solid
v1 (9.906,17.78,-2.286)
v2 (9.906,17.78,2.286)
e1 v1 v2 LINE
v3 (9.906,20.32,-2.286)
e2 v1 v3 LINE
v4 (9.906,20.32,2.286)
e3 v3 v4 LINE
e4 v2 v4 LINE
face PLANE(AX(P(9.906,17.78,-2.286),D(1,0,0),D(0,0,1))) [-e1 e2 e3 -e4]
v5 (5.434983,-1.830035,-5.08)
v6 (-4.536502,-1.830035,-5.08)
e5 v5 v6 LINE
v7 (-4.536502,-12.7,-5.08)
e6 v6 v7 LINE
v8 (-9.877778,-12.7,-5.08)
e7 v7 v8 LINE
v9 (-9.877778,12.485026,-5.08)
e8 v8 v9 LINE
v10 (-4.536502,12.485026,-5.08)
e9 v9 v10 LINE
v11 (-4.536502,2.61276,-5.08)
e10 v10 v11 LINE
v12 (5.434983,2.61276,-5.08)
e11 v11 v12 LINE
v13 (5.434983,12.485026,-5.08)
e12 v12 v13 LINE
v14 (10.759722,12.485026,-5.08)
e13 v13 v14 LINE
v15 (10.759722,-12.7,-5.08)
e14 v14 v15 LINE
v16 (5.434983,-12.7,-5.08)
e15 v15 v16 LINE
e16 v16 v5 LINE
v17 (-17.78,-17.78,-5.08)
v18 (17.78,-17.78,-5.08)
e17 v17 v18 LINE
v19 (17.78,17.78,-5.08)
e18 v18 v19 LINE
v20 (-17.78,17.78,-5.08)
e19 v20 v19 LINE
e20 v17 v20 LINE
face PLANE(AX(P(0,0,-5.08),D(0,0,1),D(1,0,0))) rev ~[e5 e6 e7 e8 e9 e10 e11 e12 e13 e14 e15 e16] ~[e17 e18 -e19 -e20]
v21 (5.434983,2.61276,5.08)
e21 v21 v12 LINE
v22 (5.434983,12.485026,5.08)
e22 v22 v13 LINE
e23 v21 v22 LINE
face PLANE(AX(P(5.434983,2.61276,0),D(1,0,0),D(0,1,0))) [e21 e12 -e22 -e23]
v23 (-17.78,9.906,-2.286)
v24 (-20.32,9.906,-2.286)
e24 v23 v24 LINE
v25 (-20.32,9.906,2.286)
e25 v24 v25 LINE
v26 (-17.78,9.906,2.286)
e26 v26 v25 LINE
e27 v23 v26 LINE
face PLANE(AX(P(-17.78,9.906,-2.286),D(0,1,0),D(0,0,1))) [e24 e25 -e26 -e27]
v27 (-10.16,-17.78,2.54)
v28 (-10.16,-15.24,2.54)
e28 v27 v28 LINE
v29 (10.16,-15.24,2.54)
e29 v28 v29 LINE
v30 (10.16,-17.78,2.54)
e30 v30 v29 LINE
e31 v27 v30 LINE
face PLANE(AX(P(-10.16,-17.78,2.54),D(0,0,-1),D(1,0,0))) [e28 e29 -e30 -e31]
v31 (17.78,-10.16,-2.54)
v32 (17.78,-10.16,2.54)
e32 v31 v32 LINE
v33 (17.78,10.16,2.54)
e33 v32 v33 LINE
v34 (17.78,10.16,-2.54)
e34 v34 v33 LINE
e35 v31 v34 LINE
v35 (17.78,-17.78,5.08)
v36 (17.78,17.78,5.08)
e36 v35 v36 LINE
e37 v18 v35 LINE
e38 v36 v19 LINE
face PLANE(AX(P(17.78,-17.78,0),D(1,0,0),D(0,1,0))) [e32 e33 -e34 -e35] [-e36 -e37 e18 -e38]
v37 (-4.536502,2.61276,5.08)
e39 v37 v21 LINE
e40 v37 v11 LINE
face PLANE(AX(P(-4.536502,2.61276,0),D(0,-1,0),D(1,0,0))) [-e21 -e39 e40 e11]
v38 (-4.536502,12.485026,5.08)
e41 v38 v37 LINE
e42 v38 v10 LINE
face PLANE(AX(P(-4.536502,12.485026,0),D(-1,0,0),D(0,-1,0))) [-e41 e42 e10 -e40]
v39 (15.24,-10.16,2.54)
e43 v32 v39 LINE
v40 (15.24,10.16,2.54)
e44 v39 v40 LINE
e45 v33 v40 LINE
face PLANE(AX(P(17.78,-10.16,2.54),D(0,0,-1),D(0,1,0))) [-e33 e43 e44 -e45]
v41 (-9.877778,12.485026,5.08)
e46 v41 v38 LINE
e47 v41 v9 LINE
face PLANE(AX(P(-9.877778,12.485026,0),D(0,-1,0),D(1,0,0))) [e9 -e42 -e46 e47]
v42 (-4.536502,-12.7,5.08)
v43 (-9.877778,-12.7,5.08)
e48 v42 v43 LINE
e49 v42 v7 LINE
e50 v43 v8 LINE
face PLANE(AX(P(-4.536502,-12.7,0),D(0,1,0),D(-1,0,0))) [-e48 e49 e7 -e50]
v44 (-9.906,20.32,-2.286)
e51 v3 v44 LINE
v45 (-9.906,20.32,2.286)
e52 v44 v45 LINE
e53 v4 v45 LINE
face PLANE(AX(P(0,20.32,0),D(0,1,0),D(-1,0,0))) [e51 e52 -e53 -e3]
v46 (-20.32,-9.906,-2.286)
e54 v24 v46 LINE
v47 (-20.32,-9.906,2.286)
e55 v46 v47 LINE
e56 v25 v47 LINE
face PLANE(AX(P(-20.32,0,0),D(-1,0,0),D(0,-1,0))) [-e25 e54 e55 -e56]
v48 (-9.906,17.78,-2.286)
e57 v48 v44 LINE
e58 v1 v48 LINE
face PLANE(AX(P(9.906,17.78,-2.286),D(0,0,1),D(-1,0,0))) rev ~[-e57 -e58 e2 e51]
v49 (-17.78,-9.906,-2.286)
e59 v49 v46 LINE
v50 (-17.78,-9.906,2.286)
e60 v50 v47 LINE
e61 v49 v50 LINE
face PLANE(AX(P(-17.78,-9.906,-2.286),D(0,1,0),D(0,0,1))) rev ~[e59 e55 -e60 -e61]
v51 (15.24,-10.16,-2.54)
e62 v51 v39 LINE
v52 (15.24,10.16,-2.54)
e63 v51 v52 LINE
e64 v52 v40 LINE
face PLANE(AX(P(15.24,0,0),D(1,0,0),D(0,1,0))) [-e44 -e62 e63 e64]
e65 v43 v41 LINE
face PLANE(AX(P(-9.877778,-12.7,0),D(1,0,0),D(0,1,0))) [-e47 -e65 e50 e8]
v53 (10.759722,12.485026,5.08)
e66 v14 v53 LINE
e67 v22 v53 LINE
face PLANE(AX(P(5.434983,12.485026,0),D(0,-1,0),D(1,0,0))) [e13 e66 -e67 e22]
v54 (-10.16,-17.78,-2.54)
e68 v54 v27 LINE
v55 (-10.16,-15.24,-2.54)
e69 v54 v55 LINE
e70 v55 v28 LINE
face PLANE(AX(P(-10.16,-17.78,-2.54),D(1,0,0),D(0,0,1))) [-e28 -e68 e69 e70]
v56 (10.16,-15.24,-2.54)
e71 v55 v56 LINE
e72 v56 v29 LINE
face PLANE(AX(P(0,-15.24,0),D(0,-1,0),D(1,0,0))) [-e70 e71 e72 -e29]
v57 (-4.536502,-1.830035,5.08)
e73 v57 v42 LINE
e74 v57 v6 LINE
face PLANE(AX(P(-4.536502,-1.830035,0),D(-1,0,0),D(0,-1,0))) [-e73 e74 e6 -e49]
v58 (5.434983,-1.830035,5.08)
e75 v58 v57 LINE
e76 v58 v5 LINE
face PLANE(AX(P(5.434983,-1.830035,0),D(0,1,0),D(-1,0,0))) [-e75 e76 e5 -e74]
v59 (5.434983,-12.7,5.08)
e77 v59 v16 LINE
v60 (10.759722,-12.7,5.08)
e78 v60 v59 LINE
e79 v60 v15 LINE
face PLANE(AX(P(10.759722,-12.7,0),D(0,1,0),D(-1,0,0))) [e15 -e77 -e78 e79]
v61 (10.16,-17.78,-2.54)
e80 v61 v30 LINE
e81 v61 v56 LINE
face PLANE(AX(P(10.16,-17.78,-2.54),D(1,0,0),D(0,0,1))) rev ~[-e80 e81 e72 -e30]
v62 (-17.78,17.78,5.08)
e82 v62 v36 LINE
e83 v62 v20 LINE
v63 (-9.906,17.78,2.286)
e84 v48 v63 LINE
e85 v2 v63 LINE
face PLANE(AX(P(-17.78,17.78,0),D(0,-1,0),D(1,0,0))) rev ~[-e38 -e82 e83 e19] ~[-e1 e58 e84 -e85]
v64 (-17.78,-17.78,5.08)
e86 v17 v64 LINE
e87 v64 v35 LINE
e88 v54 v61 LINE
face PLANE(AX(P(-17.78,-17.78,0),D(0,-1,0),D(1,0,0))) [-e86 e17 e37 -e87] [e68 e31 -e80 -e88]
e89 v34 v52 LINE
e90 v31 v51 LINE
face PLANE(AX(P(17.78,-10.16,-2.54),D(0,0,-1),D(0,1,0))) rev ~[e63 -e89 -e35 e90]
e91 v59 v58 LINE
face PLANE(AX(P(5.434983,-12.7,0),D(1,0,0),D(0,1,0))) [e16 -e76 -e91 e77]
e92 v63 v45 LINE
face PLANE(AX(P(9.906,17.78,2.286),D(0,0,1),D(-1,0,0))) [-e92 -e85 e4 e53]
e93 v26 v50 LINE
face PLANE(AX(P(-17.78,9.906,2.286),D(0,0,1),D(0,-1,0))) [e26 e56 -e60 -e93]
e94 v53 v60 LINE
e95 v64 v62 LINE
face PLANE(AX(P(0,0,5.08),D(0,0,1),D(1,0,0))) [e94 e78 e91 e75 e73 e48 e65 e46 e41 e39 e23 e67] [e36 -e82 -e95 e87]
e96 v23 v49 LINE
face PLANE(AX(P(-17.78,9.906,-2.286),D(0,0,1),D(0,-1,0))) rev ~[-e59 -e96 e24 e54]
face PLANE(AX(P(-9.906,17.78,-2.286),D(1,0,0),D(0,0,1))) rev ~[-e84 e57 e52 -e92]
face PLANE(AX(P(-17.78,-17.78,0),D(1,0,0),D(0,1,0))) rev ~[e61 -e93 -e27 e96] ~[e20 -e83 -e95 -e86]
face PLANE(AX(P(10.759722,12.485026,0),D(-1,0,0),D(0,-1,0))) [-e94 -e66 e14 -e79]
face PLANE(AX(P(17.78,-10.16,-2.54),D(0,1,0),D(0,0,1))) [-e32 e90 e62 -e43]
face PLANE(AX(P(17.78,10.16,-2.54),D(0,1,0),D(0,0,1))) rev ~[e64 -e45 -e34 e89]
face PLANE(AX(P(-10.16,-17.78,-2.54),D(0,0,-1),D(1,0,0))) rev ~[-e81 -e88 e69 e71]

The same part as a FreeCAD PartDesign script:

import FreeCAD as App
import Part
import Sketcher
from FreeCAD import Vector
Q = App.Units.Quantity


def add_polygon(sketch, points):
    """Adds a closed chain of lines whose ends are joined by coincident constraints."""
    first, n = sketch.GeometryCount, len(points)
    for a, b in zip(points, points[1:] + points[:1]):
        sketch.addGeometry(Part.LineSegment(App.Vector(*a, 0), App.Vector(*b, 0)), False)
    for i in range(n):
        sketch.addConstraint(Sketcher.Constraint("Coincident", first + i, 2, first + (i + 1) % n, 1))

doc = App.newDocument("Part")
body = doc.addObject("PartDesign::Body", "Body")

# Sketch on XY plane
sketch1 = body.newObject("Sketcher::SketchObject", "Sketch")
sketch1.AttachmentSupport = (doc.getObject("XY_Plane"), [""])
sketch1.MapMode = "FlatFace"
add_polygon(sketch1, [(-18, 18), (-18, -18), (18, -18), (18, 18)])  # lines 0-3
add_polygon(sketch1, [(5, 12), (11, 12), (11, -13), (5, -13), (5, -2), (-5, -2), (-5, -13), (-10, -13), (-10, 12), (-5, 12), (-5, 3), (5, 3)])  # lines 4-15
sketch1.addConstraint([
    Sketcher.Constraint("Vertical", 0),
    Sketcher.Constraint("Horizontal", 1),
    Sketcher.Constraint("Vertical", 2),
    Sketcher.Constraint("Horizontal", 3),
    Sketcher.Constraint("Horizontal", 4),
    Sketcher.Constraint("Vertical", 5),
    Sketcher.Constraint("Horizontal", 6),
    Sketcher.Constraint("Vertical", 7),
    Sketcher.Constraint("Horizontal", 8),
    Sketcher.Constraint("Vertical", 9),
    Sketcher.Constraint("Horizontal", 10),
    Sketcher.Constraint("Vertical", 11),
    Sketcher.Constraint("Horizontal", 12),
    Sketcher.Constraint("Vertical", 13),
    Sketcher.Constraint("Horizontal", 14),
    Sketcher.Constraint("Vertical", 15),
    Sketcher.Constraint("Symmetric", 0, 2, 2, 2, -1, 1),
    Sketcher.Constraint("Horizontal", 6, 2, 9, 2),
    Sketcher.Constraint("Horizontal", 4, 2, 11, 2),
    Sketcher.Constraint("Vertical", 9, 2, 12, 2),
    Sketcher.Constraint("Vertical", 7, 2, 14, 2),
    Sketcher.Constraint("Equal", 3, 0),
    Sketcher.Constraint("DistanceX", 1, 1, 1, 2, Q("1.4 in")),
    Sketcher.Constraint("DistanceY", 5, 2, -1, 1, Q("0.5 in")),
    Sketcher.Constraint("DistanceX", 11, 2, 4, 2, Q("0.8125 in")),
    Sketcher.Constraint("DistanceX", 4, 1, 4, 2, Q("5.32474 mm")),
    Sketcher.Constraint("DistanceX", 8, 2, -1, 1, Q("4.536502 mm")),
    Sketcher.Constraint("DistanceX", 8, 2, 8, 1, Q("9.971484 mm")),
    Sketcher.Constraint("DistanceY", 5, 2, 5, 1, Q("25.185026 mm")),
    Sketcher.Constraint("DistanceY", 7, 1, 7, 2, Q("10.869965 mm")),
    Sketcher.Constraint("DistanceY", 13, 2, 13, 1, Q("9.872266 mm")),
])
pad1 = body.newObject("PartDesign::Pad", "Pad")
pad1.Profile = sketch1
pad1.Length = Q("0.4 in")
pad1.Midplane = True

# Sketch on XZ plane
sketch2 = body.newObject("Sketcher::SketchObject", "Sketch001")
sketch2.AttachmentSupport = (doc.getObject("XZ_Plane"), [""])
sketch2.MapMode = "FlatFace"
sketch2.AttachmentOffset = App.Placement(Vector(0, 0, -0.7 * 25.4), App.Rotation())
add_polygon(sketch2, [(9.9, 2.3), (9.9, -2.3), (-9.9, -2.3), (-9.9, 2.3)])  # lines 0-3
sketch2.addConstraint([
    Sketcher.Constraint("Vertical", 0),
    Sketcher.Constraint("Horizontal", 1),
    Sketcher.Constraint("Vertical", 2),
    Sketcher.Constraint("Horizontal", 3),
    Sketcher.Constraint("Symmetric", 0, 2, 2, 2, -1, 1),
    Sketcher.Constraint("DistanceX", 1, 2, 1, 1, Q("0.78 in")),
    Sketcher.Constraint("DistanceY", 0, 2, 0, 1, Q("0.18 in")),
])
pad2 = body.newObject("PartDesign::Pad", "Pad001")
pad2.Profile = sketch2
pad2.Length = Q("0.1 in")
pad2.Reversed = True

# Sketch on YZ plane
sketch3 = body.newObject("Sketcher::SketchObject", "Sketch002")
sketch3.AttachmentSupport = (doc.getObject("YZ_Plane"), [""])
sketch3.MapMode = "FlatFace"
sketch3.AttachmentOffset = App.Placement(Vector(0, 0, -0.7 * 25.4), App.Rotation())
add_polygon(sketch3, [(9.9, 2.3), (9.9, -2.3), (-9.9, -2.3), (-9.9, 2.3)])  # lines 0-3
sketch3.addConstraint([
    Sketcher.Constraint("Vertical", 0),
    Sketcher.Constraint("Horizontal", 1),
    Sketcher.Constraint("Vertical", 2),
    Sketcher.Constraint("Horizontal", 3),
    Sketcher.Constraint("Symmetric", 0, 2, 2, 2, -1, 1),
    Sketcher.Constraint("DistanceX", 1, 2, 1, 1, Q("0.78 in")),
    Sketcher.Constraint("DistanceY", 0, 2, 0, 1, Q("0.18 in")),
])
pad3 = body.newObject("PartDesign::Pad", "Pad002")
pad3.Profile = sketch3
pad3.Length = Q("0.1 in")
pad3.Reversed = True

# Sketch on XZ plane
sketch4 = body.newObject("Sketcher::SketchObject", "Sketch003")
sketch4.AttachmentSupport = (doc.getObject("XZ_Plane"), [""])
sketch4.MapMode = "FlatFace"
sketch4.AttachmentOffset = App.Placement(Vector(0, 0, 0.7 * 25.4), App.Rotation())
add_polygon(sketch4, [(-10, 3), (-10, -3), (10, -3), (10, 3)])  # lines 0-3
sketch4.addConstraint([
    Sketcher.Constraint("Vertical", 0),
    Sketcher.Constraint("Horizontal", 1),
    Sketcher.Constraint("Vertical", 2),
    Sketcher.Constraint("Horizontal", 3),
    Sketcher.Constraint("Symmetric", 0, 2, 2, 2, -1, 1),
    Sketcher.Constraint("DistanceX", 1, 1, 1, 2, Q("0.8 in")),
    Sketcher.Constraint("DistanceY", 0, 2, 0, 1, Q("0.2 in")),
])
pocket1 = body.newObject("PartDesign::Pocket", "Pocket")
pocket1.Profile = sketch4
pocket1.Length = Q("0.1 in")

# Sketch on YZ plane
sketch5 = body.newObject("Sketcher::SketchObject", "Sketch004")
sketch5.AttachmentSupport = (doc.getObject("YZ_Plane"), [""])
sketch5.MapMode = "FlatFace"
sketch5.AttachmentOffset = App.Placement(Vector(0, 0, 0.7 * 25.4), App.Rotation())
add_polygon(sketch5, [(-10, 3), (-10, -3), (10, -3), (10, 3)])  # lines 0-3
sketch5.addConstraint([
    Sketcher.Constraint("Vertical", 0),
    Sketcher.Constraint("Horizontal", 1),
    Sketcher.Constraint("Vertical", 2),
    Sketcher.Constraint("Horizontal", 3),
    Sketcher.Constraint("Symmetric", 0, 2, 2, 2, -1, 1),
    Sketcher.Constraint("DistanceX", 1, 1, 1, 2, Q("0.8 in")),
    Sketcher.Constraint("DistanceY", 0, 2, 0, 1, Q("0.2 in")),
])
pocket2 = body.newObject("PartDesign::Pocket", "Pocket001")
pocket2.Profile = sketch5
pocket2.Length = Q("0.1 in")

doc.recompute()
